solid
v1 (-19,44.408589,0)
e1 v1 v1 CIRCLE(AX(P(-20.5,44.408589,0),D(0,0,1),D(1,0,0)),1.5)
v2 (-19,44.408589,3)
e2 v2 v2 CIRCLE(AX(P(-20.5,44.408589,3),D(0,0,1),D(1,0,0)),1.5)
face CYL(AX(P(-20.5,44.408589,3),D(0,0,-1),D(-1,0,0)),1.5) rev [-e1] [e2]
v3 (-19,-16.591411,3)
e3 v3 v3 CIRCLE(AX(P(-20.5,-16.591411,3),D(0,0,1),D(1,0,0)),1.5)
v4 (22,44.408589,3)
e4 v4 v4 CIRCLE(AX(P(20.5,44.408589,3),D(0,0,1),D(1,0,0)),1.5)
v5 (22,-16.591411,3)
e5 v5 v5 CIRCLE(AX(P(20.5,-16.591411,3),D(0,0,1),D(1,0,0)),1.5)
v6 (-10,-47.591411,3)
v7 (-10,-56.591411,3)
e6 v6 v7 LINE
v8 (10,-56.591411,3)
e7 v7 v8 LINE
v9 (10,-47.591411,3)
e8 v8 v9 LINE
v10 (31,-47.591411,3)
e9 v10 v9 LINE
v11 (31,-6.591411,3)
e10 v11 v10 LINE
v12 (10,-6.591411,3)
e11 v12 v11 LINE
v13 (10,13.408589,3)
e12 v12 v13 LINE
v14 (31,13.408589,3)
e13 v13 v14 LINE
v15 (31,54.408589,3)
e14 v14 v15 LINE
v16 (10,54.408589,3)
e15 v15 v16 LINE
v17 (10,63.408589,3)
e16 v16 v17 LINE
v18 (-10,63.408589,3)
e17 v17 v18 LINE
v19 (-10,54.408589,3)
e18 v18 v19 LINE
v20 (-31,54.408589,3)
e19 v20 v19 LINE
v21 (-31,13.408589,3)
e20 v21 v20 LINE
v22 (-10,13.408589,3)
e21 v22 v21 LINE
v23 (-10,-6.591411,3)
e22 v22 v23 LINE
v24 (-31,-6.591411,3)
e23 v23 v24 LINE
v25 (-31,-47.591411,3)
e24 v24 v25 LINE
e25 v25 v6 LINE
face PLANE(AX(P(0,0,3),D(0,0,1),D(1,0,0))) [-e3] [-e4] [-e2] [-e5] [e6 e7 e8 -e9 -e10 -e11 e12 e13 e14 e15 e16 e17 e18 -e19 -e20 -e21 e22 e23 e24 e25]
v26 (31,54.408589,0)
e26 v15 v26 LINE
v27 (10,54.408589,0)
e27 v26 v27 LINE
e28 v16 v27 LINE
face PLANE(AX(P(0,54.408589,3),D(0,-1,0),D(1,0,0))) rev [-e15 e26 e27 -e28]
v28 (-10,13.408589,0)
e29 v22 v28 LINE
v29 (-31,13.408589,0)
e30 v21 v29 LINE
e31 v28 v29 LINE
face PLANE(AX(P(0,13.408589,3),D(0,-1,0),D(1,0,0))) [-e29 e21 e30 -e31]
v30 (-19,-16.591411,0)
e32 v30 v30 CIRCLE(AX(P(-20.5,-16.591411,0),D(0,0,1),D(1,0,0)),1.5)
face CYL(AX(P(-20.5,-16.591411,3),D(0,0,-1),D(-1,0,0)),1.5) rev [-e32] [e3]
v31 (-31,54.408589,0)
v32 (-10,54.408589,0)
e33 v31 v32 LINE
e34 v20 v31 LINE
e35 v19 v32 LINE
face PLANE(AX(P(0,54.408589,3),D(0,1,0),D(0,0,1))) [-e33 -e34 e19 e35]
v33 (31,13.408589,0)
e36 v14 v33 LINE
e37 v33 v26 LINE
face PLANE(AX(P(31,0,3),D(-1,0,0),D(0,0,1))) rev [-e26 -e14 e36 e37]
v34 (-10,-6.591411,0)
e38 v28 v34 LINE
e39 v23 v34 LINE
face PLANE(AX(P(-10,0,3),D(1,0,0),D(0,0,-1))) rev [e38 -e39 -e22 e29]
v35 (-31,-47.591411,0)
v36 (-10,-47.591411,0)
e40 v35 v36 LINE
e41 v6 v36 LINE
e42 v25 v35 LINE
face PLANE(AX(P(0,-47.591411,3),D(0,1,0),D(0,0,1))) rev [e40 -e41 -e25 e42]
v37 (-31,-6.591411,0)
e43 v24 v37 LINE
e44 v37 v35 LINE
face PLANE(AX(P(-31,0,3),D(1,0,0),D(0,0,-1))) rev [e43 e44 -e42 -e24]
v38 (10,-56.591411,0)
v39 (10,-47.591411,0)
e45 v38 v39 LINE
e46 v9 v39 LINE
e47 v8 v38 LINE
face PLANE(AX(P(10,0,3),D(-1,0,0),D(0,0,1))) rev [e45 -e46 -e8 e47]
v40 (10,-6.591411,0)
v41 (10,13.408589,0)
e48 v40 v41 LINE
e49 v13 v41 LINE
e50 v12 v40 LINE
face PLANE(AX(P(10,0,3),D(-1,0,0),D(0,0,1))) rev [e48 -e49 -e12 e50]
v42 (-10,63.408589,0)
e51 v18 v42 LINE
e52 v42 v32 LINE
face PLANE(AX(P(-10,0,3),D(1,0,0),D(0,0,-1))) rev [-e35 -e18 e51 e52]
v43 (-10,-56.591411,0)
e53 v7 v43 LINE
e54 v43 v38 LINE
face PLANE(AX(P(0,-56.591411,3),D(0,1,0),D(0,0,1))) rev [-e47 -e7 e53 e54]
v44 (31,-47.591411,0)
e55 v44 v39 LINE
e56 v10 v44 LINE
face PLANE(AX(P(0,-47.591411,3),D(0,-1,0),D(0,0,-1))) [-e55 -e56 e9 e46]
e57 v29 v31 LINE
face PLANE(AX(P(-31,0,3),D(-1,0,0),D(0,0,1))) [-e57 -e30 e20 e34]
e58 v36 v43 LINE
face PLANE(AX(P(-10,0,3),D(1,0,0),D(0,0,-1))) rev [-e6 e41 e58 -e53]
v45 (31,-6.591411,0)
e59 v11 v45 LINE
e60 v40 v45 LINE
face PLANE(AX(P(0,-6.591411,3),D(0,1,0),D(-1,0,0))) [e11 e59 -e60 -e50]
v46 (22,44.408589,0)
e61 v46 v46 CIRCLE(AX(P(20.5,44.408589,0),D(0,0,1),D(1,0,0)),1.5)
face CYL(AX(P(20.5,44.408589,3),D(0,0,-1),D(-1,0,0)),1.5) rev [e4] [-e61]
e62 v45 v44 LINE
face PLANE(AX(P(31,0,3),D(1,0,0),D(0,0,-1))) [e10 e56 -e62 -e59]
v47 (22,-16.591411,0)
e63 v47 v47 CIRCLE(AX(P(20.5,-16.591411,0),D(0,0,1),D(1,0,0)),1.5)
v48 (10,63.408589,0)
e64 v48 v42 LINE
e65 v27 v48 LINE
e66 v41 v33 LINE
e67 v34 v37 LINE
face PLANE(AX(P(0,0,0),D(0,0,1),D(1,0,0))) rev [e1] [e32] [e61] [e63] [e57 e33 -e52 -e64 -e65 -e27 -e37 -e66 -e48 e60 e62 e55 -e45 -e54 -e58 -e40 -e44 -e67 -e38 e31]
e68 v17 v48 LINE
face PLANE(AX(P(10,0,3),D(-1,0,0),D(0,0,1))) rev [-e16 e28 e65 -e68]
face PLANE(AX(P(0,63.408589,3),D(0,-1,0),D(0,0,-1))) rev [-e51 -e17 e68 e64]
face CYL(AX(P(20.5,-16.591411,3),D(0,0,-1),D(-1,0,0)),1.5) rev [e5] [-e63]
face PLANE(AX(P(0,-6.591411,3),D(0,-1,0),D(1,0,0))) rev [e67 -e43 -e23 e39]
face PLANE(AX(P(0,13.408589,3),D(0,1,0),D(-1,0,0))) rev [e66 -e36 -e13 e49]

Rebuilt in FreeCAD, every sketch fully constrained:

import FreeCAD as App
import Part
import Sketcher
Q = App.Units.Quantity

doc = App.newDocument("Part")
params = doc.addObject("Spreadsheet::Sheet", "Params")
for row, (alias, value) in enumerate([
    ("sketch1_diameter", "3 mm"),
    ("sketch1_width", "21 mm"),
    ("sketch1_width2", "20 mm"),
    ("sketch1_height", "41 mm"),
    ("sketch1_height2", "9 mm"),
    ("pad1_length", "3 mm"),
], start=1):
    params.set(f"A{row}", alias)
    params.set(f"B{row}", "=" + value)
    params.setAlias(f"B{row}", alias)

body = doc.addObject("PartDesign::Body", "Body")

# Sketch on XY plane
sketch1 = doc.addObject("Sketcher::SketchObject", "Sketch")
body.addObject(sketch1)
sketch1.AttachmentSupport = (doc.XY_Plane, [""])
sketch1.MapMode = "FlatFace"
sketch1.addGeometry(Part.LineSegment(App.Vector(10, 13.4, 0), App.Vector(31, 13.4, 0)), False)
sketch1.addGeometry(Part.LineSegment(App.Vector(31, 13.4, 0), App.Vector(31, 54.4, 0)), False)
sketch1.addGeometry(Part.LineSegment(App.Vector(31, 54.4, 0), App.Vector(10, 54.4, 0)), False)
sketch1.addGeometry(Part.LineSegment(App.Vector(10, 54.4, 0), App.Vector(10, 63.4, 0)), False)
sketch1.addGeometry(Part.LineSegment(App.Vector(10, 63.4, 0), App.Vector(-10, 63.4, 0)), False)
sketch1.addGeometry(Part.LineSegment(App.Vector(-10, 63.4, 0), App.Vector(-10, 54.4, 0)), False)
sketch1.addGeometry(Part.LineSegment(App.Vector(-10, 54.4, 0), App.Vector(-31, 54.4, 0)), False)
sketch1.addGeometry(Part.LineSegment(App.Vector(-31, 54.4, 0), App.Vector(-31, 13.4, 0)), False)
sketch1.addGeometry(Part.LineSegment(App.Vector(-31, 13.4, 0), App.Vector(-10, 13.4, 0)), False)
sketch1.addGeometry(Part.LineSegment(App.Vector(-10, 13.4, 0), App.Vector(-10, -6.6, 0)), False)
sketch1.addGeometry(Part.LineSegment(App.Vector(-10, -6.6, 0), App.Vector(-31, -6.6, 0)), False)
sketch1.addGeometry(Part.LineSegment(App.Vector(-31, -6.6, 0), App.Vector(-31, -47.6, 0)), False)
sketch1.addGeometry(Part.LineSegment(App.Vector(-31, -47.6, 0), App.Vector(-10, -47.6, 0)), False)
sketch1.addGeometry(Part.LineSegment(App.Vector(-10, -47.6, 0), App.Vector(-10, -56.6, 0)), False)
sketch1.addGeometry(Part.LineSegment(App.Vector(-10, -56.6, 0), App.Vector(10, -56.6, 0)), False)
sketch1.addGeometry(Part.LineSegment(App.Vector(10, -56.6, 0), App.Vector(10, -47.6, 0)), False)
sketch1.addGeometry(Part.LineSegment(App.Vector(10, -47.6, 0), App.Vector(31, -47.6, 0)), False)
sketch1.addGeometry(Part.LineSegment(App.Vector(31, -47.6, 0), App.Vector(31, -6.6, 0)), False)
sketch1.addGeometry(Part.LineSegment(App.Vector(31, -6.6, 0), App.Vector(10, -6.6, 0)), False)
sketch1.addGeometry(Part.LineSegment(App.Vector(10, -6.6, 0), App.Vector(10, 13.4, 0)), False)
sketch1.addGeometry(Part.Circle(App.Vector(20.5, 44.4, 0), App.Vector(0, 0, 1), 1.5), False)
sketch1.addGeometry(Part.Circle(App.Vector(-20.5, 44.4, 0), App.Vector(0, 0, 1), 1.5), False)
sketch1.addGeometry(Part.Circle(App.Vector(-20.5, -16.6, 0), App.Vector(0, 0, 1), 1.5), False)
sketch1.addGeometry(Part.Circle(App.Vector(20.5, -16.6, 0), App.Vector(0, 0, 1), 1.5), False)
sketch1.addConstraint(Sketcher.Constraint("Coincident", 0, 2, 1, 1))
sketch1.addConstraint(Sketcher.Constraint("Coincident", 1, 2, 2, 1))
sketch1.addConstraint(Sketcher.Constraint("Coincident", 2, 2, 3, 1))
sketch1.addConstraint(Sketcher.Constraint("Coincident", 3, 2, 4, 1))
sketch1.addConstraint(Sketcher.Constraint("Coincident", 4, 2, 5, 1))
sketch1.addConstraint(Sketcher.Constraint("Coincident", 5, 2, 6, 1))
sketch1.addConstraint(Sketcher.Constraint("Coincident", 6, 2, 7, 1))
sketch1.addConstraint(Sketcher.Constraint("Coincident", 7, 2, 8, 1))
sketch1.addConstraint(Sketcher.Constraint("Coincident", 8, 2, 9, 1))
sketch1.addConstraint(Sketcher.Constraint("Coincident", 9, 2, 10, 1))
sketch1.addConstraint(Sketcher.Constraint("Coincident", 10, 2, 11, 1))
sketch1.addConstraint(Sketcher.Constraint("Coincident", 11, 2, 12, 1))
sketch1.addConstraint(Sketcher.Constraint("Coincident", 12, 2, 13, 1))
sketch1.addConstraint(Sketcher.Constraint("Coincident", 13, 2, 14, 1))
sketch1.addConstraint(Sketcher.Constraint("Coincident", 14, 2, 15, 1))
sketch1.addConstraint(Sketcher.Constraint("Coincident", 15, 2, 16, 1))
sketch1.addConstraint(Sketcher.Constraint("Coincident", 16, 2, 17, 1))
sketch1.addConstraint(Sketcher.Constraint("Coincident", 17, 2, 18, 1))
sketch1.addConstraint(Sketcher.Constraint("Coincident", 18, 2, 19, 1))
sketch1.addConstraint(Sketcher.Constraint("Coincident", 19, 2, 0, 1))
sketch1.addConstraint(Sketcher.Constraint("Horizontal", 0))
sketch1.addConstraint(Sketcher.Constraint("Vertical", 1))
sketch1.addConstraint(Sketcher.Constraint("Horizontal", 2))
sketch1.addConstraint(Sketcher.Constraint("Vertical", 3))
sketch1.addConstraint(Sketcher.Constraint("Horizontal", 4))
sketch1.addConstraint(Sketcher.Constraint("Vertical", 5))
sketch1.addConstraint(Sketcher.Constraint("Horizontal", 6))
sketch1.addConstraint(Sketcher.Constraint("Vertical", 7))
sketch1.addConstraint(Sketcher.Constraint("Horizontal", 8))
sketch1.addConstraint(Sketcher.Constraint("Vertical", 9))
sketch1.addConstraint(Sketcher.Constraint("Horizontal", 10))
sketch1.addConstraint(Sketcher.Constraint("Vertical", 11))
sketch1.addConstraint(Sketcher.Constraint("Horizontal", 12))
sketch1.addConstraint(Sketcher.Constraint("Vertical", 13))
sketch1.addConstraint(Sketcher.Constraint("Horizontal", 14))
sketch1.addConstraint(Sketcher.Constraint("Vertical", 15))
sketch1.addConstraint(Sketcher.Constraint("Horizontal", 16))
sketch1.addConstraint(Sketcher.Constraint("Vertical", 17))
sketch1.addConstraint(Sketcher.Constraint("Horizontal", 18))
sketch1.addConstraint(Sketcher.Constraint("Vertical", 19))
sketch1.addConstraint(Sketcher.Constraint("Equal", 20, 21))
sketch1.addConstraint(Sketcher.Constraint("Equal", 21, 22))
sketch1.addConstraint(Sketcher.Constraint("Equal", 22, 23))
sketch1.addConstraint(Sketcher.Constraint("Symmetric", 20, 3, 21, 3, -2))
sketch1.addConstraint(Sketcher.Constraint("Symmetric", 22, 3, 23, 3, -2))
sketch1.addConstraint(Sketcher.Constraint("Symmetric", 2, 2, 5, 2, -2))
sketch1.addConstraint(Sketcher.Constraint("Symmetric", 0, 2, 7, 2, -2))
sketch1.addConstraint(Sketcher.Constraint("Symmetric", 12, 2, 15, 2, -2))
sketch1.addConstraint(Sketcher.Constraint("Symmetric", 10, 2, 17, 2, -2))
sketch1.addConstraint(Sketcher.Constraint("Vertical", 21, 3, 22, 3))
sketch1.addConstraint(Sketcher.Constraint("Vertical", 5, 2, 8, 2))
sketch1.addConstraint(Sketcher.Constraint("Vertical", 7, 2, 10, 2))
sketch1.addConstraint(Sketcher.Constraint("Vertical", 9, 2, 12, 2))
sketch1.addConstraint(Sketcher.Constraint("Vertical", 15, 2, 18, 2))
sketch1.addConstraint(Sketcher.Constraint("Equal", 14, 9))
sketch1.addConstraint(Sketcher.Constraint("Equal", 7, 11))
sketch1.addConstraint(Sketcher.Constraint("Equal", 5, 13))
sketch1.addConstraint(Sketcher.Constraint("Diameter", 20, Q("3 mm")))
sketch1.addConstraint(Sketcher.Constraint("DistanceX", 0, 1, 0, 2, Q("21 mm")))
sketch1.addConstraint(Sketcher.Constraint("DistanceX", 4, 2, 4, 1, Q("20 mm")))
sketch1.addConstraint(Sketcher.Constraint("DistanceY", 1, 1, 1, 2, Q("41 mm")))
sketch1.addConstraint(Sketcher.Constraint("DistanceY", 3, 1, 3, 2, Q("9 mm")))
sketch1.addConstraint(Sketcher.Constraint("DistanceX", 21, 3, 20, 3, Q("41 mm")))
sketch1.addConstraint(Sketcher.Constraint("DistanceY", 22, 3, 21, 3, Q("61 mm")))
sketch1.addConstraint(Sketcher.Constraint("DistanceY", 23, 3, 0, 2, Q("30 mm")))
sketch1.addConstraint(Sketcher.Constraint("DistanceY", -1, 1, 20, 3, Q("44.408589 mm")))
sketch1.setExpression("Constraints[57]", "Params.sketch1_diameter")
sketch1.setExpression("Constraints[58]", "Params.sketch1_width")
sketch1.setExpression("Constraints[59]", "Params.sketch1_width2")
sketch1.setExpression("Constraints[60]", "Params.sketch1_height")
sketch1.setExpression("Constraints[61]", "Params.sketch1_height2")
pad1 = doc.addObject("PartDesign::Pad", "Pad")
body.addObject(pad1)
pad1.Profile = sketch1
pad1.setExpression("Length", "Params.pad1_length")

doc.recompute()
